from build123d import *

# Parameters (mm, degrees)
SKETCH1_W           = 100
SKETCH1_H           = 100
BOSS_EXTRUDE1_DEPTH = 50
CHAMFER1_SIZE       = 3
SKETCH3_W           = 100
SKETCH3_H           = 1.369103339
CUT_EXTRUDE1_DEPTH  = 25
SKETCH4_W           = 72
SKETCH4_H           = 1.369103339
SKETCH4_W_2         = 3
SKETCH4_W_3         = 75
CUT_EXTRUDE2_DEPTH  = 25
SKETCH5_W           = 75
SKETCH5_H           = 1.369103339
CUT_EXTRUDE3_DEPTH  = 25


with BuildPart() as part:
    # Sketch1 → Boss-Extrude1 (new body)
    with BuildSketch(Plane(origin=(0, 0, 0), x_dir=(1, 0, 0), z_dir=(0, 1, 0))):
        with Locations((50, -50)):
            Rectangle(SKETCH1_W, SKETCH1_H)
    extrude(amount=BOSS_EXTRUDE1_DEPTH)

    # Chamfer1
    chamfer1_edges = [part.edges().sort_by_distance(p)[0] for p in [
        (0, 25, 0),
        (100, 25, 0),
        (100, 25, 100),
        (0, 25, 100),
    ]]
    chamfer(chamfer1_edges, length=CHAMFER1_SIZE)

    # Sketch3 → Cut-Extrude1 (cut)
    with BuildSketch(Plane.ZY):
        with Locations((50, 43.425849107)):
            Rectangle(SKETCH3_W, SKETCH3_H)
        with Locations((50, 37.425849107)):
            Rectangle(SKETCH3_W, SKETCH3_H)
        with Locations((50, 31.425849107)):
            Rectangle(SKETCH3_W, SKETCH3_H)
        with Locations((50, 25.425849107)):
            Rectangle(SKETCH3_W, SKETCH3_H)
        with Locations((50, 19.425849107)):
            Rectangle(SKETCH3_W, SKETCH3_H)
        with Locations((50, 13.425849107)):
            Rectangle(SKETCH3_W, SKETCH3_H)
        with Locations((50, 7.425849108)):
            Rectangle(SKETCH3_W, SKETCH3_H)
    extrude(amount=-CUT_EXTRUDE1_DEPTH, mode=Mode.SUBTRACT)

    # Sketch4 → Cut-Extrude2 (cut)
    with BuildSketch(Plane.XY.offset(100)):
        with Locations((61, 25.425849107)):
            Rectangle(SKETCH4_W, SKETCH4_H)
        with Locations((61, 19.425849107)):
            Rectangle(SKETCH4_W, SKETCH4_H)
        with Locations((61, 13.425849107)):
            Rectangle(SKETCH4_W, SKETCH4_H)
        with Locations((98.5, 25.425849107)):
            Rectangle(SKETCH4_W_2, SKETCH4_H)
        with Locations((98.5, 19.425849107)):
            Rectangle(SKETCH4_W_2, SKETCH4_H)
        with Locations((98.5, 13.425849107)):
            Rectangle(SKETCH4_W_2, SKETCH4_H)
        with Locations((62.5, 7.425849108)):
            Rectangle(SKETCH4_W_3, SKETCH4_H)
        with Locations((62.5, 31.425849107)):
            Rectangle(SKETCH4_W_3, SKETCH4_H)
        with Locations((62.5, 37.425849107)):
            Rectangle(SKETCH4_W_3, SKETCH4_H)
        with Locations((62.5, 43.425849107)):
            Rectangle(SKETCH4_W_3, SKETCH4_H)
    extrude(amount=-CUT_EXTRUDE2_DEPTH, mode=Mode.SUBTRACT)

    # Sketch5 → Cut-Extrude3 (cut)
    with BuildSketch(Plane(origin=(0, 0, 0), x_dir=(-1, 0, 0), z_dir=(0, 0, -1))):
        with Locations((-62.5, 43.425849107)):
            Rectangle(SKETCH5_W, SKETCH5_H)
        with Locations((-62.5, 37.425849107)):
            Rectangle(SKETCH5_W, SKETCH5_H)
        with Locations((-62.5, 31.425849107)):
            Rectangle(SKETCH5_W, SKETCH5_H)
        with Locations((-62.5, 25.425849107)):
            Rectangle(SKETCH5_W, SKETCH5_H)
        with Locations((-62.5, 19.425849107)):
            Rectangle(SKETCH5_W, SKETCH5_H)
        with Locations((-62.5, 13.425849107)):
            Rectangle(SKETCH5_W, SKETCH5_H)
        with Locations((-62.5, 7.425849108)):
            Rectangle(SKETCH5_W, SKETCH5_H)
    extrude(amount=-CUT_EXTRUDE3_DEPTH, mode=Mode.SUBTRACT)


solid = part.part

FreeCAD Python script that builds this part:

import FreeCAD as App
import Part
import Sketcher

V = App.Vector


def edges_at(feature, points):
    """Names of the edges that pass closest to the given points."""
    edges = feature.Shape.Edges
    near = lambda p: min(range(len(edges)), key=lambda i: edges[i].distToShape(Part.Vertex(*p))[0])
    return sorted({f"Edge{near(p) + 1}" for p in points})


def add_polygon(sketch, points):
    """Adds a closed chain of lines whose ends are joined by coincident constraints."""
    first, n = sketch.GeometryCount, len(points)
    for a, b in zip(points, points[1:] + points[:1]):
        sketch.addGeometry(Part.LineSegment(App.Vector(*a, 0), App.Vector(*b, 0)), False)
    for i in range(n):
        sketch.addConstraint(Sketcher.Constraint("Coincident", first + i, 2, first + (i + 1) % n, 1))

doc = App.newDocument("Part")
body = doc.addObject("PartDesign::Body", "Body")

# Sketch on XZ plane
sketch1 = body.newObject("Sketcher::SketchObject", "Sketch")
sketch1.AttachmentSupport = (doc.getObject("XZ_Plane"), [""])
sketch1.MapMode = "FlatFace"
add_polygon(sketch1, [(0, 0), (0, 100), (100, 100), (100, 0)])  # lines 0-3
sketch1.addConstraint([
    Sketcher.Constraint("Vertical", 0),
    Sketcher.Constraint("Horizontal", 1),
    Sketcher.Constraint("Vertical", 2),
    Sketcher.Constraint("Horizontal", 3),
    Sketcher.Constraint("Coincident", 3, 2, -1, 1),
    Sketcher.Constraint("Equal", 3, 0),
    Sketcher.Constraint("DistanceX", 1, 1, 1, 2, 100.0),
])
pad1 = body.newObject("PartDesign::Pad", "Pad")
pad1.Profile = sketch1
pad1.Length = 50
pad1.Reversed = True
doc.recompute()

chamfer = body.newObject("PartDesign::Chamfer", "Chamfer")
chamfer.Base = (pad1, edges_at(pad1, [
    (0, 25, 0),
    (100, 25, 0),
    (100, 25, 100),
    (0, 25, 100),
]))
chamfer.Size = 3

# Sketch on YZ plane
sketch2 = body.newObject("Sketcher::SketchObject", "Sketch001")
sketch2.AttachmentSupport = (doc.getObject("YZ_Plane"), [""])
sketch2.MapMode = "FlatFace"
add_polygon(sketch2, [(44.1, 0), (42.7, 0), (42.7, 100), (44.1, 100)])  # lines 0-3
add_polygon(sketch2, [(38.1, 0), (36.7, 0), (36.7, 100), (38.1, 100)])  # lines 4-7
add_polygon(sketch2, [(32.1, 0), (30.7, 0), (30.7, 100), (32.1, 100)])  # lines 8-11
add_polygon(sketch2, [(26.1, 0), (24.7, 0), (24.7, 100), (26.1, 100)])  # lines 12-15
add_polygon(sketch2, [(20.1, 0), (18.7, 0), (18.7, 100), (20.1, 100)])  # lines 16-19
add_polygon(sketch2, [(14.1, 0), (12.7, 0), (12.7, 100), (14.1, 100)])  # lines 20-23
add_polygon(sketch2, [(8.1, 0), (6.7, 0), (6.7, 100), (8.1, 100)])  # lines 24-27
sketch2.addConstraint([
    Sketcher.Constraint("Horizontal", 0),
    Sketcher.Constraint("Vertical", 1),
    Sketcher.Constraint("Horizontal", 2),
    Sketcher.Constraint("Vertical", 3),
    Sketcher.Constraint("Horizontal", 4),
    Sketcher.Constraint("Vertical", 5),
    Sketcher.Constraint("Horizontal", 6),
    Sketcher.Constraint("Vertical", 7),
    Sketcher.Constraint("Horizontal", 8),
    Sketcher.Constraint("Vertical", 9),
    Sketcher.Constraint("Horizontal", 10),
    Sketcher.Constraint("Vertical", 11),
    Sketcher.Constraint("Horizontal", 12),
    Sketcher.Constraint("Vertical", 13),
    Sketcher.Constraint("Horizontal", 14),
    Sketcher.Constraint("Vertical", 15),
    Sketcher.Constraint("Horizontal", 16),
    Sketcher.Constraint("Vertical", 17),
    Sketcher.Constraint("Horizontal", 18),
    Sketcher.Constraint("Vertical", 19),
    Sketcher.Constraint("Horizontal", 20),
    Sketcher.Constraint("Vertical", 21),
    Sketcher.Constraint("Horizontal", 22),
    Sketcher.Constraint("Vertical", 23),
    Sketcher.Constraint("Horizontal", 24),
    Sketcher.Constraint("Vertical", 25),
    Sketcher.Constraint("Horizontal", 26),
    Sketcher.Constraint("Vertical", 27),
    Sketcher.Constraint("PointOnObject", 0, 2, -1),
    Sketcher.Constraint("PointOnObject", 4, 2, -1),
    Sketcher.Constraint("PointOnObject", 8, 2, -1),
    Sketcher.Constraint("PointOnObject", 12, 2, -1),
    Sketcher.Constraint("PointOnObject", 16, 2, -1),
    Sketcher.Constraint("PointOnObject", 20, 2, -1),
    Sketcher.Constraint("PointOnObject", 24, 2, -1),
    Sketcher.Constraint("Horizontal", 2, 2, 5, 2),
    Sketcher.Constraint("Horizontal", 6, 2, 9, 2),
    Sketcher.Constraint("Horizontal", 10, 2, 13, 2),
    Sketcher.Constraint("Horizontal", 14, 2, 17, 2),
    Sketcher.Constraint("Horizontal", 18, 2, 21, 2),
    Sketcher.Constraint("Horizontal", 22, 2, 25, 2),
    Sketcher.Constraint("Equal", 2, 4),
    Sketcher.Constraint("Equal", 6, 8),
    Sketcher.Constraint("Equal", 10, 12),
    Sketcher.Constraint("Equal", 14, 16),
    Sketcher.Constraint("Equal", 18, 20),
    Sketcher.Constraint("Equal", 22, 24),
    Sketcher.Constraint("DistanceY", 1, 1, 1, 2, 100.0),
    Sketcher.Constraint("DistanceX", 4, 2, 0, 2, 6.0),
    Sketcher.Constraint("DistanceX", 8, 2, 4, 2, 6.0),
    Sketcher.Constraint("DistanceX", 12, 2, 8, 2, 6.0),
    Sketcher.Constraint("DistanceX", 16, 2, 12, 2, 6.0),
    Sketcher.Constraint("DistanceX", 20, 2, 16, 2, 6.0),
    Sketcher.Constraint("DistanceX", 24, 2, 20, 2, 6.0),
    Sketcher.Constraint("DistanceX", -1, 1, 2, 2, 44.110401),
    Sketcher.Constraint("DistanceX", 0, 2, 0, 1, 1.369103),
])
pocket1 = body.newObject("PartDesign::Pocket", "Pocket")
pocket1.Profile = sketch2
pocket1.Length = 25
pocket1.Reversed = True

# Sketch on XY plane
sketch3 = body.newObject("Sketcher::SketchObject", "Sketch002")
sketch3.AttachmentSupport = (doc.getObject("XY_Plane"), [""])
sketch3.MapMode = "FlatFace"
sketch3.AttachmentOffset = App.Placement(V(0, 0, 100), App.Rotation())
add_polygon(sketch3, [(25, 26.1), (25, 24.7), (100, 24.7), (100, 26.1)])  # lines 0-3
add_polygon(sketch3, [(25, 20.1), (25, 18.7), (100, 18.7), (100, 20.1)])  # lines 4-7
add_polygon(sketch3, [(25, 14.1), (25, 12.7), (100, 12.7), (100, 14.1)])  # lines 8-11
add_polygon(sketch3, [(25, 8.1), (25, 6.7), (100, 6.7), (100, 8.1)])  # lines 12-15
add_polygon(sketch3, [(25, 32.1), (25, 30.7), (100, 30.7), (100, 32.1)])  # lines 16-19
add_polygon(sketch3, [(25, 38.1), (25, 36.7), (100, 36.7), (100, 38.1)])  # lines 20-23
add_polygon(sketch3, [(25, 44.1), (25, 42.7), (100, 42.7), (100, 44.1)])  # lines 24-27
sketch3.addConstraint([
    Sketcher.Constraint("Vertical", 0),
    Sketcher.Constraint("Horizontal", 1),
    Sketcher.Constraint("Vertical", 2),
    Sketcher.Constraint("Horizontal", 3),
    Sketcher.Constraint("Vertical", 4),
    Sketcher.Constraint("Horizontal", 5),
    Sketcher.Constraint("Vertical", 6),
    Sketcher.Constraint("Horizontal", 7),
    Sketcher.Constraint("Vertical", 8),
    Sketcher.Constraint("Horizontal", 9),
    Sketcher.Constraint("Vertical", 10),
    Sketcher.Constraint("Horizontal", 11),
    Sketcher.Constraint("Vertical", 12),
    Sketcher.Constraint("Horizontal", 13),
    Sketcher.Constraint("Vertical", 14),
    Sketcher.Constraint("Horizontal", 15),
    Sketcher.Constraint("Vertical", 16),
    Sketcher.Constraint("Horizontal", 17),
    Sketcher.Constraint("Vertical", 18),
    Sketcher.Constraint("Horizontal", 19),
    Sketcher.Constraint("Vertical", 20),
    Sketcher.Constraint("Horizontal", 21),
    Sketcher.Constraint("Vertical", 22),
    Sketcher.Constraint("Horizontal", 23),
    Sketcher.Constraint("Vertical", 24),
    Sketcher.Constraint("Horizontal", 25),
    Sketcher.Constraint("Vertical", 26),
    Sketcher.Constraint("Horizontal", 27),
    Sketcher.Constraint("Vertical", 3, 2, 4, 2),
    Sketcher.Constraint("Vertical", 2, 2, 5, 2),
    Sketcher.Constraint("Vertical", 7, 2, 8, 2),
    Sketcher.Constraint("Vertical", 6, 2, 9, 2),
    Sketcher.Constraint("Vertical", 11, 2, 12, 2),
    Sketcher.Constraint("Vertical", 10, 2, 13, 2),
    Sketcher.Constraint("Vertical", 15, 2, 16, 2),
    Sketcher.Constraint("Vertical", 14, 2, 17, 2),
    Sketcher.Constraint("Vertical", 19, 2, 20, 2),
    Sketcher.Constraint("Vertical", 18, 2, 21, 2),
    Sketcher.Constraint("Vertical", 23, 2, 24, 2),
    Sketcher.Constraint("Vertical", 22, 2, 25, 2),
    Sketcher.Constraint("Equal", 2, 4),
    Sketcher.Constraint("Equal", 6, 8),
    Sketcher.Constraint("Equal", 10, 12),
    Sketcher.Constraint("Equal", 14, 16),
    Sketcher.Constraint("Equal", 18, 20),
    Sketcher.Constraint("Equal", 22, 24),
    Sketcher.Constraint("DistanceX", 1, 1, 1, 2, 75.0),
    Sketcher.Constraint("DistanceX", -1, 1, 0, 2, 25.0),
    Sketcher.Constraint("DistanceY", 4, 2, 0, 2, 6.0),
    Sketcher.Constraint("DistanceY", 8, 2, 4, 2, 6.0),
    Sketcher.Constraint("DistanceY", 12, 2, 8, 2, 6.0),
    Sketcher.Constraint("DistanceY", 0, 2, 16, 2, 6.0),
    Sketcher.Constraint("DistanceY", 16, 2, 20, 2, 6.0),
    Sketcher.Constraint("DistanceY", 20, 2, 24, 2, 6.0),
    Sketcher.Constraint("DistanceY", -1, 1, 2, 2, 26.110401),
    Sketcher.Constraint("DistanceY", 0, 2, 0, 1, 1.369103),
])
pocket2 = body.newObject("PartDesign::Pocket", "Pocket001")
pocket2.Profile = sketch3
pocket2.Length = 25

# Sketch on XY plane
sketch4 = body.newObject("Sketcher::SketchObject", "Sketch003")
sketch4.AttachmentSupport = (doc.getObject("XY_Plane"), [""])
sketch4.MapMode = "FlatFace"
add_polygon(sketch4, [(100, 44.1), (100, 42.7), (25, 42.7), (25, 44.1)])  # lines 0-3
add_polygon(sketch4, [(100, 38.1), (100, 36.7), (25, 36.7), (25, 38.1)])  # lines 4-7
add_polygon(sketch4, [(100, 32.1), (100, 30.7), (25, 30.7), (25, 32.1)])  # lines 8-11
add_polygon(sketch4, [(100, 26.1), (100, 24.7), (25, 24.7), (25, 26.1)])  # lines 12-15
add_polygon(sketch4, [(100, 20.1), (100, 18.7), (25, 18.7), (25, 20.1)])  # lines 16-19
add_polygon(sketch4, [(100, 14.1), (100, 12.7), (25, 12.7), (25, 14.1)])  # lines 20-23
add_polygon(sketch4, [(100, 8.1), (100, 6.7), (25, 6.7), (25, 8.1)])  # lines 24-27
sketch4.addConstraint([
    Sketcher.Constraint("Vertical", 0),
    Sketcher.Constraint("Horizontal", 1),
    Sketcher.Constraint("Vertical", 2),
    Sketcher.Constraint("Horizontal", 3),
    Sketcher.Constraint("Vertical", 4),
    Sketcher.Constraint("Horizontal", 5),
    Sketcher.Constraint("Vertical", 6),
    Sketcher.Constraint("Horizontal", 7),
    Sketcher.Constraint("Vertical", 8),
    Sketcher.Constraint("Horizontal", 9),
    Sketcher.Constraint("Vertical", 10),
    Sketcher.Constraint("Horizontal", 11),
    Sketcher.Constraint("Vertical", 12),
    Sketcher.Constraint("Horizontal", 13),
    Sketcher.Constraint("Vertical", 14),
    Sketcher.Constraint("Horizontal", 15),
    Sketcher.Constraint("Vertical", 16),
    Sketcher.Constraint("Horizontal", 17),
    Sketcher.Constraint("Vertical", 18),
    Sketcher.Constraint("Horizontal", 19),
    Sketcher.Constraint("Vertical", 20),
    Sketcher.Constraint("Horizontal", 21),
    Sketcher.Constraint("Vertical", 22),
    Sketcher.Constraint("Horizontal", 23),
    Sketcher.Constraint("Vertical", 24),
    Sketcher.Constraint("Horizontal", 25),
    Sketcher.Constraint("Vertical", 26),
    Sketcher.Constraint("Horizontal", 27),
    Sketcher.Constraint("Vertical", 3, 2, 4, 2),
    Sketcher.Constraint("Vertical", 2, 2, 5, 2),
    Sketcher.Constraint("Vertical", 7, 2, 8, 2),
    Sketcher.Constraint("Vertical", 6, 2, 9, 2),
    Sketcher.Constraint("Vertical", 11, 2, 12, 2),
    Sketcher.Constraint("Vertical", 10, 2, 13, 2),
    Sketcher.Constraint("Vertical", 15, 2, 16, 2),
    Sketcher.Constraint("Vertical", 14, 2, 17, 2),
    Sketcher.Constraint("Vertical", 19, 2, 20, 2),
    Sketcher.Constraint("Vertical", 18, 2, 21, 2),
    Sketcher.Constraint("Vertical", 23, 2, 24, 2),
    Sketcher.Constraint("Vertical", 22, 2, 25, 2),
    Sketcher.Constraint("Equal", 2, 4),
    Sketcher.Constraint("Equal", 6, 8),
    Sketcher.Constraint("Equal", 10, 12),
    Sketcher.Constraint("Equal", 14, 16),
    Sketcher.Constraint("Equal", 18, 20),
    Sketcher.Constraint("Equal", 22, 24),
    Sketcher.Constraint("DistanceX", 1, 2, 1, 1, 75.0),
    Sketcher.Constraint("DistanceX", -1, 1, 0, 2, 100.0),
    Sketcher.Constraint("DistanceY", 4, 2, 0, 2, 6.0),
    Sketcher.Constraint("DistanceY", 8, 2, 4, 2, 6.0),
    Sketcher.Constraint("DistanceY", 12, 2, 8, 2, 6.0),
    Sketcher.Constraint("DistanceY", 16, 2, 12, 2, 6.0),
    Sketcher.Constraint("DistanceY", 20, 2, 16, 2, 6.0),
    Sketcher.Constraint("DistanceY", 24, 2, 20, 2, 6.0),
    Sketcher.Constraint("DistanceY", -1, 1, 2, 2, 44.110401),
    Sketcher.Constraint("DistanceY", 0, 2, 0, 1, 1.369103),
])
pocket3 = body.newObject("PartDesign::Pocket", "Pocket002")
pocket3.Profile = sketch4
pocket3.Length = 25
pocket3.Reversed = True

doc.recompute()
